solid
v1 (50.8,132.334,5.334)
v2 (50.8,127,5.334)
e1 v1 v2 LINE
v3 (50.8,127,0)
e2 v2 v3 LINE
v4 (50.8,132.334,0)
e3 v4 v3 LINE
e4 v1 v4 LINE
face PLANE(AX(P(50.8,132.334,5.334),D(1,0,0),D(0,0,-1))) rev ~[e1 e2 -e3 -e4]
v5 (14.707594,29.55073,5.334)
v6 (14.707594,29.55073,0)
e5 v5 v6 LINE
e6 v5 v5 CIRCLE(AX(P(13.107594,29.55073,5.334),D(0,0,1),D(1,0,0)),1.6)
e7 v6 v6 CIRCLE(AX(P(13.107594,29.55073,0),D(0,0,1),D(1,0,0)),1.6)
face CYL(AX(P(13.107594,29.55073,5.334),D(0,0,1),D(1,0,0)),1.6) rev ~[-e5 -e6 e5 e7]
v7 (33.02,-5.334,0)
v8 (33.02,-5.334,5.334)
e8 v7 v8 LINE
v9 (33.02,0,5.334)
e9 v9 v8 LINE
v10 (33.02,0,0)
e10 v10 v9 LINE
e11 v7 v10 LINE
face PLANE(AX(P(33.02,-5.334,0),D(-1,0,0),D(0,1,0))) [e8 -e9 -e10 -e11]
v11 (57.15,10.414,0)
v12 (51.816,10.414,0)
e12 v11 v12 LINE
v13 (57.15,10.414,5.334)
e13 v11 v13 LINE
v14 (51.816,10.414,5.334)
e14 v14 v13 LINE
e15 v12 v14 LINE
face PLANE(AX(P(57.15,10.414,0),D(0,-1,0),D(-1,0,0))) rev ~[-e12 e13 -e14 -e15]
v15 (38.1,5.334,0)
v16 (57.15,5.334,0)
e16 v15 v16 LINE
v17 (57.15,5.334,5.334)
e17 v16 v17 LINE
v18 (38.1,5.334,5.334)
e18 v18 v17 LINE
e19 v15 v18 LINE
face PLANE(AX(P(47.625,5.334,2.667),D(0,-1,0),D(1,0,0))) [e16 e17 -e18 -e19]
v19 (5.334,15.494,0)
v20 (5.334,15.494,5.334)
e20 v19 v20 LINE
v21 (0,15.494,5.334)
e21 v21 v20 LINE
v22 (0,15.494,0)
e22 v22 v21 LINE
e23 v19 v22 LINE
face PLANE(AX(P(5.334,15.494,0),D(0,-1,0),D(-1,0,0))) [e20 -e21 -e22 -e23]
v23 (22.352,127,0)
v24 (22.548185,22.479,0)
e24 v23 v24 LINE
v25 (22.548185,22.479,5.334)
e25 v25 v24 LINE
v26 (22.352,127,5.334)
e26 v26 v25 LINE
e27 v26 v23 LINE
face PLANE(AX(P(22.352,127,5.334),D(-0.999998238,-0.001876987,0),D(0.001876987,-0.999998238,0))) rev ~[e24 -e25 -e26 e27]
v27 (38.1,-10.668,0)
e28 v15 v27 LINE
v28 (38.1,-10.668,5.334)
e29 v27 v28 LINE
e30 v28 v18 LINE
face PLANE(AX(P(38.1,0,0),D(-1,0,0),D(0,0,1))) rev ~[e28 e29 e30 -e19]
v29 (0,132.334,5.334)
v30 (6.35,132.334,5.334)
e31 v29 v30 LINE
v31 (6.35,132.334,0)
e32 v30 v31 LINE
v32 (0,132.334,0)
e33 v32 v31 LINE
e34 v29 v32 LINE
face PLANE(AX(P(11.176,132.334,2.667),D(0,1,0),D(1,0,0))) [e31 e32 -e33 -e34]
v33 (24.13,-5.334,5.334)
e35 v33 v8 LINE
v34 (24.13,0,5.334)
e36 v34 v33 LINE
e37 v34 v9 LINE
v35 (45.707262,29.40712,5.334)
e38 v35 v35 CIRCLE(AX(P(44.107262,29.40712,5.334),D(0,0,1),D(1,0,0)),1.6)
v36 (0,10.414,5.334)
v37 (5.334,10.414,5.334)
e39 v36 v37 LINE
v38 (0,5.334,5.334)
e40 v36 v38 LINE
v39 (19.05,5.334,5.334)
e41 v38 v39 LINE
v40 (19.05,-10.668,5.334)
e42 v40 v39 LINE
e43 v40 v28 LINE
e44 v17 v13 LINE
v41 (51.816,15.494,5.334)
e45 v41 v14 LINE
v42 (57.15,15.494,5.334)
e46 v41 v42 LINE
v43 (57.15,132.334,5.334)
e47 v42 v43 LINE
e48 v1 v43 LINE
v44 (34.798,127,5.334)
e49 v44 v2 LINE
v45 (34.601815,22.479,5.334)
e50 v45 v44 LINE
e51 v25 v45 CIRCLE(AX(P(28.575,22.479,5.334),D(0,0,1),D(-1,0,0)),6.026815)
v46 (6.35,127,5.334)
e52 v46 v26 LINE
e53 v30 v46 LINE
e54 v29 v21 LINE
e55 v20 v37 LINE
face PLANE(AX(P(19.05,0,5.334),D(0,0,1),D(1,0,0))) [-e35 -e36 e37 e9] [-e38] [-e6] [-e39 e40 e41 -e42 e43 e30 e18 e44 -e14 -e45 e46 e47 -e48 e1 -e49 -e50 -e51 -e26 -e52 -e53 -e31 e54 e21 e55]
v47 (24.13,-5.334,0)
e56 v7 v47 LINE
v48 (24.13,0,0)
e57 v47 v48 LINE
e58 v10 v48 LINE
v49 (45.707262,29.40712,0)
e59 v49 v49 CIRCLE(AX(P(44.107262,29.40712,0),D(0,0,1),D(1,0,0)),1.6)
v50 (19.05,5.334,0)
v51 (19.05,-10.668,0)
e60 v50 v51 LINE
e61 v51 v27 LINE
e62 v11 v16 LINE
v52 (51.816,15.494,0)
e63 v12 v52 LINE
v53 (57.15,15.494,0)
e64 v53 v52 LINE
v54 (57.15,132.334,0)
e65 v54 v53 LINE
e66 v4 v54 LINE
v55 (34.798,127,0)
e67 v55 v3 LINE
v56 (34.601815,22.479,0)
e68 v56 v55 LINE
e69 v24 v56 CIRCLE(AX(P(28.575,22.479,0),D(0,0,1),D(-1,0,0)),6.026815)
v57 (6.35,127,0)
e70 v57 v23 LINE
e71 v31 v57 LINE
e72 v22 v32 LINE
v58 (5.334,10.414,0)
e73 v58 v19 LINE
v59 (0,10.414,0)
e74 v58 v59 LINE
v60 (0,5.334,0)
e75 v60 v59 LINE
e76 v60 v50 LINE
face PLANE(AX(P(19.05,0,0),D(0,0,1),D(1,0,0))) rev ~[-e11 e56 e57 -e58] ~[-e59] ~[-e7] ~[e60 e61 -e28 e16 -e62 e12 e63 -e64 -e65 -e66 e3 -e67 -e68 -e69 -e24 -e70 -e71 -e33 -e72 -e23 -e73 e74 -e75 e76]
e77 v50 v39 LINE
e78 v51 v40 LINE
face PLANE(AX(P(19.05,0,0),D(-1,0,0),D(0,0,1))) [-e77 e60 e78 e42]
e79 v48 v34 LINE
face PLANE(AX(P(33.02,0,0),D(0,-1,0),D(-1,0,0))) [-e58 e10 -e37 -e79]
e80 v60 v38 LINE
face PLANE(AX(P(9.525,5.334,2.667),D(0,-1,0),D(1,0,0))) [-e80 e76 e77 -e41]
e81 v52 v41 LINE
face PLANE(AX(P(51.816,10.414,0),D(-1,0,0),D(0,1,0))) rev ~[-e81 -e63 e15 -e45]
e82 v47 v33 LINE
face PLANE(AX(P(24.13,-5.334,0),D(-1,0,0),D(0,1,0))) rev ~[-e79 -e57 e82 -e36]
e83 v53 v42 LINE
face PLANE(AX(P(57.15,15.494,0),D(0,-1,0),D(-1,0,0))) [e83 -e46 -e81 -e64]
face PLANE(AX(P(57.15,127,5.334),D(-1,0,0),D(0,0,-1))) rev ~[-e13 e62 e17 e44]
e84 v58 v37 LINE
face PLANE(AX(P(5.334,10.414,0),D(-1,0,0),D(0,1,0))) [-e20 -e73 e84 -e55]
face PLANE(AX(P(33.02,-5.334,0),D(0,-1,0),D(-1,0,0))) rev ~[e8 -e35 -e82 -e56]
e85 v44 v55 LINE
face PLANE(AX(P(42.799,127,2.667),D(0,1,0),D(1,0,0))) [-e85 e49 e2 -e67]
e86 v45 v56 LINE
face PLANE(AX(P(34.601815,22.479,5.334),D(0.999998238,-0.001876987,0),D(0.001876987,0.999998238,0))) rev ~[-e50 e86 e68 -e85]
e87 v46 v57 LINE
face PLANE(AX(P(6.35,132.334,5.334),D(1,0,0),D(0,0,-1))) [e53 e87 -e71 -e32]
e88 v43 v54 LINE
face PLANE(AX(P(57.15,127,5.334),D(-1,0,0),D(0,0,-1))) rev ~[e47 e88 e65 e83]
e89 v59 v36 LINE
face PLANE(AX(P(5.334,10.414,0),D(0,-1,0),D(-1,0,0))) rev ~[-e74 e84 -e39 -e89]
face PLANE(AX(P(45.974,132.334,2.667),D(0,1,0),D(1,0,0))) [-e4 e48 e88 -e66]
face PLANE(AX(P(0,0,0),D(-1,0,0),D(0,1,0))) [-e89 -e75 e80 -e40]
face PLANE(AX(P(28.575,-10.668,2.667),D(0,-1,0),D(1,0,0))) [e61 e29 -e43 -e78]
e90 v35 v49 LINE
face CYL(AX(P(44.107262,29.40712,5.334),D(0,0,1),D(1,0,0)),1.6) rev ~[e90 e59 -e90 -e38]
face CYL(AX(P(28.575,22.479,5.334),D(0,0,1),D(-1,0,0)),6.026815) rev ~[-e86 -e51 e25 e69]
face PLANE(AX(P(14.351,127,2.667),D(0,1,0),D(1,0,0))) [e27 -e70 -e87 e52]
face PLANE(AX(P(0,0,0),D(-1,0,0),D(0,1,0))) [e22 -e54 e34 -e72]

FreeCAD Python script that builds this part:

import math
import FreeCAD as App
import Part
import Sketcher

V = App.Vector
Q = App.Units.Quantity

doc = App.newDocument("Part")
body = doc.addObject("PartDesign::Body", "Body")

sketch1 = body.newObject("Sketcher::SketchObject", "Sketch")
sketch1.AttachmentSupport = (doc.getObject("XY_Plane"), [""])
sketch1.MapMode = "FlatFace"
sketch1.addGeometry([
    Part.LineSegment(V(0, 127, 0), V(0, 0, 0)),
    Part.LineSegment(V(0, 0, 0), V(57.15, 0, 0)),
    Part.LineSegment(V(57.15, 0, 0), V(57.15, 127, 0)),
    Part.LineSegment(V(57.15, 127, 0), V(0, 127, 0)),
], False)
sketch1.addConstraint([
    Sketcher.Constraint("Coincident", 0, 2, 1, 1),
    Sketcher.Constraint("Coincident", 1, 2, 2, 1),
    Sketcher.Constraint("Coincident", 2, 2, 3, 1),
    Sketcher.Constraint("Coincident", 3, 2, 0, 1),
    Sketcher.Constraint("Vertical", 0),
    Sketcher.Constraint("Horizontal", 1),
    Sketcher.Constraint("Vertical", 2),
    Sketcher.Constraint("Horizontal", 3),
    Sketcher.Constraint("Coincident", 0, 2, -1, 1),
    Sketcher.Constraint("DistanceY", 0, 2, 0, 1, Q("5 in")),
    Sketcher.Constraint("DistanceX", 1, 1, 1, 2, Q("2.25 in")),
])
pad1 = body.newObject("PartDesign::Pad", "Pad")
pad1.Profile = sketch1
pad1.Length = Q("0.21 in")

sketch2 = body.newObject("Sketcher::SketchObject", "Sketch001")
sketch2.AttachmentSupport = (doc.getObject("XY_Plane"), [""])
sketch2.MapMode = "FlatFace"
sketch2.AttachmentOffset = App.Placement(V(0, 0, 0.21 * 25.4), App.Rotation())
sketch2.addGeometry([
    Part.LineSegment(V(34.798, 127, 0), V(22.352, 127, 0)),
    Part.LineSegment(V(22.352, 127, 0), V(22.548185, 22.479, 0)),
    Part.ArcOfCircle(Part.Circle(V(28.575, 22.479, 0), V(0, 0, 1), 6.026815), math.radians(180), math.radians(360)),
    Part.LineSegment(V(34.601815, 22.479, 0), V(34.798, 127, 0)),
], False)
sketch2.addConstraint([
    Sketcher.Constraint("Coincident", 0, 2, 1, 1),
    Sketcher.Constraint("Coincident", 1, 2, 2, 1),
    Sketcher.Constraint("Coincident", 2, 2, 3, 1),
    Sketcher.Constraint("Coincident", 3, 2, 0, 1),
    Sketcher.Constraint("Horizontal", 0),
    Sketcher.Constraint("Horizontal", 2, 3, 1, 2),
    Sketcher.Constraint("Horizontal", 1, 2, 2, 2),
    Sketcher.Constraint("DistanceY", -1, 1, 0, 2, Q("5 in")),
    Sketcher.Constraint("DistanceX", 0, 2, 0, 1, Q("0.49 in")),
    Sketcher.Constraint("DistanceX", -1, 1, 0, 2, Q("0.88 in")),
    Sketcher.Constraint("DistanceX", -1, 1, 2, 3, Q("1.125 in")),
    Sketcher.Constraint("DistanceY", -1, 1, 2, 3, Q("0.885 in")),
    Sketcher.Constraint("Radius", 2, Q("6.026815 mm")),
])
pocket1 = body.newObject("PartDesign::Pocket", "Pocket")
pocket1.Profile = sketch2
pocket1.Type = "ThroughAll"

sketch3 = body.newObject("Sketcher::SketchObject", "Sketch002")
sketch3.AttachmentSupport = (doc.getObject("XZ_Plane"), [""])
sketch3.MapMode = "FlatFace"
sketch3.addGeometry([
    Part.LineSegment(V(38.1, 5.334, 0), V(38.1, 0, 0)),
    Part.LineSegment(V(38.1, 0, 0), V(57.15, 0, 0)),
    Part.LineSegment(V(57.15, 0, 0), V(57.15, 5.334, 0)),
    Part.LineSegment(V(57.15, 5.334, 0), V(38.1, 5.334, 0)),
], False)
sketch3.addConstraint([
    Sketcher.Constraint("Coincident", 0, 2, 1, 1),
    Sketcher.Constraint("Coincident", 1, 2, 2, 1),
    Sketcher.Constraint("Coincident", 2, 2, 3, 1),
    Sketcher.Constraint("Coincident", 3, 2, 0, 1),
    Sketcher.Constraint("Vertical", 0),
    Sketcher.Constraint("Horizontal", 1),
    Sketcher.Constraint("Vertical", 2),
    Sketcher.Constraint("Horizontal", 3),
    Sketcher.Constraint("PointOnObject", 0, 2, -1),
    Sketcher.Constraint("DistanceX", 1, 1, 1, 2, Q("0.75 in")),
    Sketcher.Constraint("DistanceY", 0, 2, 0, 1, Q("0.21 in")),
    Sketcher.Constraint("DistanceX", -1, 1, 0, 2, Q("1.5 in")),
])
pocket2 = body.newObject("PartDesign::Pocket", "Pocket001")
pocket2.Profile = sketch3
pocket2.Length = Q("0.21 in")

sketch4 = body.newObject("Sketcher::SketchObject", "Sketch003")
sketch4.AttachmentSupport = (doc.getObject("XZ_Plane"), [""])
sketch4.MapMode = "FlatFace"
sketch4.addGeometry([
    Part.LineSegment(V(38.1, 5.334, 0), V(38.1, 0, 0)),
    Part.LineSegment(V(38.1, 0, 0), V(57.15, 0, 0)),
    Part.LineSegment(V(57.15, 0, 0), V(57.15, 5.334, 0)),
    Part.LineSegment(V(57.15, 5.334, 0), V(38.1, 5.334, 0)),
    Part.LineSegment(V(0, 5.334, 0), V(0, 0, 0)),
    Part.LineSegment(V(0, 0, 0), V(19.05, 0, 0)),
    Part.LineSegment(V(19.05, 0, 0), V(19.05, 5.334, 0)),
    Part.LineSegment(V(19.05, 5.334, 0), V(0, 5.334, 0)),
], False)
sketch4.addConstraint([
    Sketcher.Constraint("Coincident", 0, 2, 1, 1),
    Sketcher.Constraint("Coincident", 1, 2, 2, 1),
    Sketcher.Constraint("Coincident", 2, 2, 3, 1),
    Sketcher.Constraint("Coincident", 3, 2, 0, 1),
    Sketcher.Constraint("Coincident", 4, 2, 5, 1),
    Sketcher.Constraint("Coincident", 5, 2, 6, 1),
    Sketcher.Constraint("Coincident", 6, 2, 7, 1),
    Sketcher.Constraint("Coincident", 7, 2, 4, 1),
    Sketcher.Constraint("Vertical", 0),
    Sketcher.Constraint("Horizontal", 1),
    Sketcher.Constraint("Vertical", 2),
    Sketcher.Constraint("Horizontal", 3),
    Sketcher.Constraint("Vertical", 4),
    Sketcher.Constraint("Horizontal", 5),
    Sketcher.Constraint("Vertical", 6),
    Sketcher.Constraint("Horizontal", 7),
    Sketcher.Constraint("Coincident", 4, 2, -1, 1),
    Sketcher.Constraint("PointOnObject", 0, 2, -1),
    Sketcher.Constraint("Horizontal", 3, 2, 6, 2),
    Sketcher.Constraint("Equal", 3, 5),
    Sketcher.Constraint("DistanceX", 1, 1, 1, 2, Q("0.75 in")),
    Sketcher.Constraint("DistanceY", 0, 2, 0, 1, Q("0.21 in")),
    Sketcher.Constraint("DistanceX", -1, 1, 0, 2, Q("1.5 in")),
])
pocket3 = body.newObject("PartDesign::Pocket", "Pocket002")
pocket3.Profile = sketch4
pocket3.Length = Q("0.21 in")

sketch5 = body.newObject("Sketcher::SketchObject", "Sketch004")
sketch5.AttachmentSupport = (doc.getObject("XZ_Plane"), [""])
sketch5.MapMode = "FlatFace"
sketch5.AttachmentOffset = App.Placement(V(0, 0, -5 * 25.4), App.Rotation())
sketch5.addGeometry([
    Part.LineSegment(V(34.798, 0, 0), V(34.798, 5.334, 0)),
    Part.LineSegment(V(34.798, 5.334, 0), V(57.15, 5.334, 0)),
    Part.LineSegment(V(57.15, 5.334, 0), V(57.15, 0, 0)),
    Part.LineSegment(V(57.15, 0, 0), V(34.798, 0, 0)),
    Part.LineSegment(V(0, 0, 0), V(0, 5.334, 0)),
    Part.LineSegment(V(0, 5.334, 0), V(22.352, 5.334, 0)),
    Part.LineSegment(V(22.352, 5.334, 0), V(22.352, 0, 0)),
    Part.LineSegment(V(22.352, 0, 0), V(0, 0, 0)),
], False)
sketch5.addConstraint([
    Sketcher.Constraint("Coincident", 0, 2, 1, 1),
    Sketcher.Constraint("Coincident", 1, 2, 2, 1),
    Sketcher.Constraint("Coincident", 2, 2, 3, 1),
    Sketcher.Constraint("Coincident", 3, 2, 0, 1),
    Sketcher.Constraint("Coincident", 4, 2, 5, 1),
    Sketcher.Constraint("Coincident", 5, 2, 6, 1),
    Sketcher.Constraint("Coincident", 6, 2, 7, 1),
    Sketcher.Constraint("Coincident", 7, 2, 4, 1),
    Sketcher.Constraint("Vertical", 0),
    Sketcher.Constraint("Horizontal", 1),
    Sketcher.Constraint("Vertical", 2),
    Sketcher.Constraint("Horizontal", 3),
    Sketcher.Constraint("Vertical", 4),
    Sketcher.Constraint("Horizontal", 5),
    Sketcher.Constraint("Vertical", 6),
    Sketcher.Constraint("Horizontal", 7),
    Sketcher.Constraint("Coincident", 7, 2, -1, 1),
    Sketcher.Constraint("PointOnObject", 2, 2, -1),
    Sketcher.Constraint("Horizontal", 1, 2, 4, 2),
    Sketcher.Constraint("Equal", 3, 5),
    Sketcher.Constraint("DistanceX", 1, 1, 1, 2, Q("0.88 in")),
    Sketcher.Constraint("DistanceY", 0, 1, 0, 2, Q("0.21 in")),
    Sketcher.Constraint("DistanceX", -1, 1, 0, 2, Q("1.37 in")),
])
pad2 = body.newObject("PartDesign::Pad", "Pad001")
pad2.Profile = sketch5
pad2.Length = Q("0.21 in")
pad2.Reversed = True

sketch6 = body.newObject("Sketcher::SketchObject", "Sketch005")
sketch6.AttachmentSupport = (doc.getObject("XZ_Plane"), [""])
sketch6.MapMode = "FlatFace"
sketch6.AttachmentOffset = App.Placement(V(0, 0, -5.21 * 25.4), App.Rotation())
sketch6.addGeometry([
    Part.LineSegment(V(6.35, 0, 0), V(6.35, 5.334, 0)),
    Part.LineSegment(V(6.35, 5.334, 0), V(22.352, 5.334, 0)),
    Part.LineSegment(V(22.352, 5.334, 0), V(22.352, 0, 0)),
    Part.LineSegment(V(22.352, 0, 0), V(6.35, 0, 0)),
    Part.LineSegment(V(34.798, 0, 0), V(34.798, 5.334, 0)),
    Part.LineSegment(V(34.798, 5.334, 0), V(50.8, 5.334, 0)),
    Part.LineSegment(V(50.8, 5.334, 0), V(50.8, 0, 0)),
    Part.LineSegment(V(50.8, 0, 0), V(34.798, 0, 0)),
], False)
sketch6.addConstraint([
    Sketcher.Constraint("Coincident", 0, 2, 1, 1),
    Sketcher.Constraint("Coincident", 1, 2, 2, 1),
    Sketcher.Constraint("Coincident", 2, 2, 3, 1),
    Sketcher.Constraint("Coincident", 3, 2, 0, 1),
    Sketcher.Constraint("Coincident", 4, 2, 5, 1),
    Sketcher.Constraint("Coincident", 5, 2, 6, 1),
    Sketcher.Constraint("Coincident", 6, 2, 7, 1),
    Sketcher.Constraint("Coincident", 7, 2, 4, 1),
    Sketcher.Constraint("Vertical", 0),
    Sketcher.Constraint("Horizontal", 1),
    Sketcher.Constraint("Vertical", 2),
    Sketcher.Constraint("Horizontal", 3),
    Sketcher.Constraint("Vertical", 4),
    Sketcher.Constraint("Horizontal", 5),
    Sketcher.Constraint("Vertical", 6),
    Sketcher.Constraint("Horizontal", 7),
    Sketcher.Constraint("PointOnObject", 2, 2, -1),
    Sketcher.Constraint("PointOnObject", 6, 2, -1),
    Sketcher.Constraint("Horizontal", 1, 2, 4, 2),
    Sketcher.Constraint("Equal", 3, 5),
    Sketcher.Constraint("DistanceX", -1, 1, 5, 2, Q("2 in")),
    Sketcher.Constraint("DistanceX", 1, 1, 1, 2, Q("0.63 in")),
    Sketcher.Constraint("DistanceY", 0, 1, 0, 2, Q("0.21 in")),
    Sketcher.Constraint("DistanceX", -1, 1, 0, 2, Q("0.25 in")),
])
pocket4 = body.newObject("PartDesign::Pocket", "Pocket003")
pocket4.Profile = sketch6
pocket4.Length = Q("0.21 in")
pocket4.Reversed = True

sketch7 = body.newObject("Sketcher::SketchObject", "Sketch006")
sketch7.AttachmentSupport = (doc.getObject("XY_Plane"), [""])
sketch7.MapMode = "FlatFace"
sketch7.AttachmentOffset = App.Placement(V(0, 0, 0.21 * 25.4), App.Rotation())
sketch7.addGeometry([
    Part.Circle(V(13.107594, 29.55073, 0), V(0, 0, 1), 1.6),
    Part.Circle(V(44.107262, 29.40712, 0), V(0, 0, 1), 1.6),
], False)
sketch7.addConstraint([
    Sketcher.Constraint("Equal", 0, 1),
    Sketcher.Constraint("Diameter", 0, Q("3.2 mm")),
    Sketcher.Constraint("DistanceY", -1, 1, 0, 3, Q("29.55073 mm")),
    Sketcher.Constraint("DistanceX", -1, 1, 1, 3, Q("44.107262 mm")),
    Sketcher.Constraint("DistanceY", -1, 1, 1, 3, Q("29.40712 mm")),
    Sketcher.Constraint("DistanceX", -1, 1, 0, 3, Q("13.107594 mm")),
])
pocket5 = body.newObject("PartDesign::Pocket", "Pocket004")
pocket5.Profile = sketch7
pocket5.Type = "ThroughAll"

sketch8 = body.newObject("Sketcher::SketchObject", "Sketch007")
sketch8.AttachmentSupport = (doc.getObject("XZ_Plane"), [""])
sketch8.MapMode = "FlatFace"
sketch8.addGeometry([
    Part.LineSegment(V(19.05, 5.334, 0), V(19.05, 0, 0)),
    Part.LineSegment(V(19.05, 0, 0), V(38.1, 0, 0)),
    Part.LineSegment(V(38.1, 0, 0), V(38.1, 5.334, 0)),
    Part.LineSegment(V(38.1, 5.334, 0), V(19.05, 5.334, 0)),
], False)
sketch8.addConstraint([
    Sketcher.Constraint("Coincident", 0, 2, 1, 1),
    Sketcher.Constraint("Coincident", 1, 2, 2, 1),
    Sketcher.Constraint("Coincident", 2, 2, 3, 1),
    Sketcher.Constraint("Coincident", 3, 2, 0, 1),
    Sketcher.Constraint("Vertical", 0),
    Sketcher.Constraint("Horizontal", 1),
    Sketcher.Constraint("Vertical", 2),
    Sketcher.Constraint("Horizontal", 3),
    Sketcher.Constraint("PointOnObject", 0, 2, -1),
    Sketcher.Constraint("DistanceX", 1, 1, 1, 2, Q("0.75 in")),
    Sketcher.Constraint("DistanceY", 0, 2, 0, 1, Q("0.21 in")),
    Sketcher.Constraint("DistanceX", -1, 1, 1, 2, Q("1.5 in")),
])
pad3 = body.newObject("PartDesign::Pad", "Pad002")
pad3.Profile = sketch8
pad3.Length = Q("0.42 in")

sketch9 = body.newObject("Sketcher::SketchObject", "Sketch008")
sketch9.AttachmentSupport = (doc.getObject("XY_Plane"), [""])
sketch9.MapMode = "FlatFace"
sketch9.addGeometry([
    Part.LineSegment(V(33.02, 0, 0), V(33.02, -5.334, 0)),
    Part.LineSegment(V(33.02, -5.334, 0), V(24.13, -5.334, 0)),
    Part.LineSegment(V(24.13, -5.334, 0), V(24.13, 0, 0)),
    Part.LineSegment(V(24.13, 0, 0), V(33.02, 0, 0)),
], False)
sketch9.addConstraint([
    Sketcher.Constraint("Coincident", 0, 2, 1, 1),
    Sketcher.Constraint("Coincident", 1, 2, 2, 1),
    Sketcher.Constraint("Coincident", 2, 2, 3, 1),
    Sketcher.Constraint("Coincident", 3, 2, 0, 1),
    Sketcher.Constraint("Vertical", 0),
    Sketcher.Constraint("Horizontal", 1),
    Sketcher.Constraint("Vertical", 2),
    Sketcher.Constraint("Horizontal", 3),
    Sketcher.Constraint("PointOnObject", 2, 2, -1),
    Sketcher.Constraint("DistanceX", 1, 2, 1, 1, Q("0.35 in")),
    Sketcher.Constraint("DistanceY", 0, 2, 0, 1, Q("0.21 in")),
    Sketcher.Constraint("DistanceX", -1, 1, 0, 2, Q("1.3 in")),
])
pocket6 = body.newObject("PartDesign::Pocket", "Pocket005")
pocket6.Profile = sketch9
pocket6.Type = "ThroughAll"
pocket6.Reversed = True

sketch10 = body.newObject("Sketcher::SketchObject", "Sketch009")
sketch10.AttachmentSupport = (doc.getObject("XY_Plane"), [""])
sketch10.MapMode = "FlatFace"
sketch10.addGeometry([
    Part.LineSegment(V(57.15, 15.494, 0), V(57.15, 10.414, 0)),
    Part.LineSegment(V(57.15, 10.414, 0), V(51.816, 10.414, 0)),
    Part.LineSegment(V(51.816, 10.414, 0), V(51.816, 15.494, 0)),
    Part.LineSegment(V(51.816, 15.494, 0), V(57.15, 15.494, 0)),
    Part.LineSegment(V(5.334, 15.494, 0), V(5.334, 10.414, 0)),
    Part.LineSegment(V(5.334, 10.414, 0), V(0, 10.414, 0)),
    Part.LineSegment(V(0, 10.414, 0), V(0, 15.494, 0)),
    Part.LineSegment(V(0, 15.494, 0), V(5.334, 15.494, 0)),
], False)
sketch10.addConstraint([
    Sketcher.Constraint("Coincident", 0, 2, 1, 1),
    Sketcher.Constraint("Coincident", 1, 2, 2, 1),
    Sketcher.Constraint("Coincident", 2, 2, 3, 1),
    Sketcher.Constraint("Coincident", 3, 2, 0, 1),
    Sketcher.Constraint("Coincident", 4, 2, 5, 1),
    Sketcher.Constraint("Coincident", 5, 2, 6, 1),
    Sketcher.Constraint("Coincident", 6, 2, 7, 1),
    Sketcher.Constraint("Coincident", 7, 2, 4, 1),
    Sketcher.Constraint("Vertical", 0),
    Sketcher.Constraint("Horizontal", 1),
    Sketcher.Constraint("Vertical", 2),
    Sketcher.Constraint("Horizontal", 3),
    Sketcher.Constraint("Vertical", 4),
    Sketcher.Constraint("Horizontal", 5),
    Sketcher.Constraint("Vertical", 6),
    Sketcher.Constraint("Horizontal", 7),
    Sketcher.Constraint("PointOnObject", 5, 2, -2),
    Sketcher.Constraint("Horizontal", 1, 2, 4, 2),
    Sketcher.Constraint("Horizontal", 3, 2, 6, 2),
    Sketcher.Constraint("Equal", 3, 5),
    Sketcher.Constraint("DistanceY", 0, 2, 0, 1, Q("0.2 in")),
    Sketcher.Constraint("DistanceX", 1, 2, 1, 1, Q("0.21 in")),
    Sketcher.Constraint("DistanceX", -1, 1, 0, 2, Q("2.25 in")),
    Sketcher.Constraint("DistanceY", -1, 1, 0, 2, Q("0.41 in")),
])
pocket7 = body.newObject("PartDesign::Pocket", "Pocket006")
pocket7.Profile = sketch10
pocket7.Type = "ThroughAll"
pocket7.Reversed = True

doc.recompute()
